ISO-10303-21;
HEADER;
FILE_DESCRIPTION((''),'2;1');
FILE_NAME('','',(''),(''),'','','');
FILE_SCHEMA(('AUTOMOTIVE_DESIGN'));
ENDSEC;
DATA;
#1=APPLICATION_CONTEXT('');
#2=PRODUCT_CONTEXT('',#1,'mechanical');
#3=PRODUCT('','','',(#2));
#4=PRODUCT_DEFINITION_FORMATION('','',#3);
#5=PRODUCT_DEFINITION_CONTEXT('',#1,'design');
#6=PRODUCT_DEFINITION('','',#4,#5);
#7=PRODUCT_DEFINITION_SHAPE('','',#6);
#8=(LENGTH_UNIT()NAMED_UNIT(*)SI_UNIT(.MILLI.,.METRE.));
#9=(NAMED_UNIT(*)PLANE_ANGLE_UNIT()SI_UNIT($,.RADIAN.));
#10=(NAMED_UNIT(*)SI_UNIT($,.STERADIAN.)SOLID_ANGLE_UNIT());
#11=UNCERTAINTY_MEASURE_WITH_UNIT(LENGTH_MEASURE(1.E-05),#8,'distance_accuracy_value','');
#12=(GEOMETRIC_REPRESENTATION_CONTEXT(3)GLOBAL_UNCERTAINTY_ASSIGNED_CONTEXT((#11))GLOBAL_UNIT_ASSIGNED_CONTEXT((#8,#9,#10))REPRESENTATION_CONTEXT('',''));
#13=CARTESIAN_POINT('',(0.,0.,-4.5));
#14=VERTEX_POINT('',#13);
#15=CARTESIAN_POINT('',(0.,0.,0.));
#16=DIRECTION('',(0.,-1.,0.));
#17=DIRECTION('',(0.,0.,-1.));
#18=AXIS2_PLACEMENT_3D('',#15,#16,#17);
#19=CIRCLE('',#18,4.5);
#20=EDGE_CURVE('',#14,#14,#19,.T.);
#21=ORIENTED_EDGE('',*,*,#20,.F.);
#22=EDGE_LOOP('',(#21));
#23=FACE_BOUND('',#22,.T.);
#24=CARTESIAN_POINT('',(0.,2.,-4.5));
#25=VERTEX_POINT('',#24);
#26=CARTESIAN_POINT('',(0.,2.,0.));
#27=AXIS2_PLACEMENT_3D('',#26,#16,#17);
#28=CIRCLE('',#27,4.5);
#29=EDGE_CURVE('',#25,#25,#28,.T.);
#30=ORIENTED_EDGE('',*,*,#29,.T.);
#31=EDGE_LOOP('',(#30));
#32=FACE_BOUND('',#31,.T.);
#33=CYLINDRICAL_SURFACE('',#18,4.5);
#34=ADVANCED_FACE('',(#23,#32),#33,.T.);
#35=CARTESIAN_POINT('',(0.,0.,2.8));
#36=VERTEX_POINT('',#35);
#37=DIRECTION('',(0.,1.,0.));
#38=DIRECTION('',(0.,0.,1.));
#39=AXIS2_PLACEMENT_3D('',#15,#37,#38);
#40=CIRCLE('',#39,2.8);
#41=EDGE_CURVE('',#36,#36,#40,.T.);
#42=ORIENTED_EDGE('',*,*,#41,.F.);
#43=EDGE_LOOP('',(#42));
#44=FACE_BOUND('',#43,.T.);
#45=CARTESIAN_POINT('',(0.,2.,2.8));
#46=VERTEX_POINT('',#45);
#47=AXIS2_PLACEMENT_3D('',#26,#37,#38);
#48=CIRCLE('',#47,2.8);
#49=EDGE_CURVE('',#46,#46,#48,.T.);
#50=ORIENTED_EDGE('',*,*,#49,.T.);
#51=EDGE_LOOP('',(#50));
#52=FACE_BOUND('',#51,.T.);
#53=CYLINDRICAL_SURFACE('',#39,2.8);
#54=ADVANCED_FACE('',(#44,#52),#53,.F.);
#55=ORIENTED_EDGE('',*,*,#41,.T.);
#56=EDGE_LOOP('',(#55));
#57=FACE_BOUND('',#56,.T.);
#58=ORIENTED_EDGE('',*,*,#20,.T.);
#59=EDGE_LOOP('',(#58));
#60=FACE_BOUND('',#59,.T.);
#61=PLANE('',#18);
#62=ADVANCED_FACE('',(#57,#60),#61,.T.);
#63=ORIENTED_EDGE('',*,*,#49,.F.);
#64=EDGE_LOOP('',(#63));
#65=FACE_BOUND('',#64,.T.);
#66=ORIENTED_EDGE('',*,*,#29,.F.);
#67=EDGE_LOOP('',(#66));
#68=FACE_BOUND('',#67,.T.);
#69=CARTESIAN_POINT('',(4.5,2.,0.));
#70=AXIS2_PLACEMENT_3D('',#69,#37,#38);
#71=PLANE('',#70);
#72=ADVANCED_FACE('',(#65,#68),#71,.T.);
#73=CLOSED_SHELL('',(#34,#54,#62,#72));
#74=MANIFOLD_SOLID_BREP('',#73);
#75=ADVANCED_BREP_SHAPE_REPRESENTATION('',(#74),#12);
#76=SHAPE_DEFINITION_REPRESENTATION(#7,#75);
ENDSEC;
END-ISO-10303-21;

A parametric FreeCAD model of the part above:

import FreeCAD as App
import Part
import Sketcher

V = App.Vector


def add_polygon(sketch, points):
    """Adds a closed chain of lines whose ends are joined by coincident constraints."""
    first, n = sketch.GeometryCount, len(points)
    for a, b in zip(points, points[1:] + points[:1]):
        sketch.addGeometry(Part.LineSegment(App.Vector(*a, 0), App.Vector(*b, 0)), False)
    for i in range(n):
        sketch.addConstraint(Sketcher.Constraint("Coincident", first + i, 2, first + (i + 1) % n, 1))

doc = App.newDocument("Part")
body = doc.addObject("PartDesign::Body", "Body")

# Sketch on XY plane
sketch1 = body.newObject("Sketcher::SketchObject", "Sketch")
sketch1.AttachmentSupport = (doc.getObject("XY_Plane"), [""])
sketch1.MapMode = "FlatFace"
add_polygon(sketch1, [(0, 2), (0, 0), (4.5, 0), (4.5, 2)])  # lines 0-3
sketch1.addConstraint(Sketcher.Constraint("Vertical", 0))
sketch1.addConstraint(Sketcher.Constraint("Horizontal", 1))
sketch1.addConstraint(Sketcher.Constraint("Vertical", 2))
sketch1.addConstraint(Sketcher.Constraint("Horizontal", 3))
sketch1.addConstraint(Sketcher.Constraint("Coincident", 0, 2, -1, 1))
sketch1.addConstraint(Sketcher.Constraint("DistanceY", 0, 2, 0, 1, 2.0))
sketch1.addConstraint(Sketcher.Constraint("DistanceX", 1, 1, 1, 2, 4.5))
revolution = body.newObject("PartDesign::Revolution", "Revolution")
revolution.Profile = sketch1
revolution.ReferenceAxis = (sketch1, ["V_Axis"])
revolution.Angle = 360

# Sketch on XZ plane
sketch2 = body.newObject("Sketcher::SketchObject", "Sketch001")
sketch2.AttachmentSupport = (doc.getObject("XZ_Plane"), [""])
sketch2.MapMode = "FlatFace"
sketch2.AttachmentOffset = App.Placement(V(0, 0, -2), App.Rotation())
sketch2.addGeometry(Part.Circle(V(0, 0, 0), V(0, 0, 1), 2.8), False)
sketch2.addConstraint(Sketcher.Constraint("Coincident", 0, 3, -1, 1))
sketch2.addConstraint(Sketcher.Constraint("Diameter", 0, 5.6))
pocket1 = body.newObject("PartDesign::Pocket", "Pocket")
pocket1.Profile = sketch2
pocket1.Type = "ThroughAll"
pocket1.Reversed = True

doc.recompute()
